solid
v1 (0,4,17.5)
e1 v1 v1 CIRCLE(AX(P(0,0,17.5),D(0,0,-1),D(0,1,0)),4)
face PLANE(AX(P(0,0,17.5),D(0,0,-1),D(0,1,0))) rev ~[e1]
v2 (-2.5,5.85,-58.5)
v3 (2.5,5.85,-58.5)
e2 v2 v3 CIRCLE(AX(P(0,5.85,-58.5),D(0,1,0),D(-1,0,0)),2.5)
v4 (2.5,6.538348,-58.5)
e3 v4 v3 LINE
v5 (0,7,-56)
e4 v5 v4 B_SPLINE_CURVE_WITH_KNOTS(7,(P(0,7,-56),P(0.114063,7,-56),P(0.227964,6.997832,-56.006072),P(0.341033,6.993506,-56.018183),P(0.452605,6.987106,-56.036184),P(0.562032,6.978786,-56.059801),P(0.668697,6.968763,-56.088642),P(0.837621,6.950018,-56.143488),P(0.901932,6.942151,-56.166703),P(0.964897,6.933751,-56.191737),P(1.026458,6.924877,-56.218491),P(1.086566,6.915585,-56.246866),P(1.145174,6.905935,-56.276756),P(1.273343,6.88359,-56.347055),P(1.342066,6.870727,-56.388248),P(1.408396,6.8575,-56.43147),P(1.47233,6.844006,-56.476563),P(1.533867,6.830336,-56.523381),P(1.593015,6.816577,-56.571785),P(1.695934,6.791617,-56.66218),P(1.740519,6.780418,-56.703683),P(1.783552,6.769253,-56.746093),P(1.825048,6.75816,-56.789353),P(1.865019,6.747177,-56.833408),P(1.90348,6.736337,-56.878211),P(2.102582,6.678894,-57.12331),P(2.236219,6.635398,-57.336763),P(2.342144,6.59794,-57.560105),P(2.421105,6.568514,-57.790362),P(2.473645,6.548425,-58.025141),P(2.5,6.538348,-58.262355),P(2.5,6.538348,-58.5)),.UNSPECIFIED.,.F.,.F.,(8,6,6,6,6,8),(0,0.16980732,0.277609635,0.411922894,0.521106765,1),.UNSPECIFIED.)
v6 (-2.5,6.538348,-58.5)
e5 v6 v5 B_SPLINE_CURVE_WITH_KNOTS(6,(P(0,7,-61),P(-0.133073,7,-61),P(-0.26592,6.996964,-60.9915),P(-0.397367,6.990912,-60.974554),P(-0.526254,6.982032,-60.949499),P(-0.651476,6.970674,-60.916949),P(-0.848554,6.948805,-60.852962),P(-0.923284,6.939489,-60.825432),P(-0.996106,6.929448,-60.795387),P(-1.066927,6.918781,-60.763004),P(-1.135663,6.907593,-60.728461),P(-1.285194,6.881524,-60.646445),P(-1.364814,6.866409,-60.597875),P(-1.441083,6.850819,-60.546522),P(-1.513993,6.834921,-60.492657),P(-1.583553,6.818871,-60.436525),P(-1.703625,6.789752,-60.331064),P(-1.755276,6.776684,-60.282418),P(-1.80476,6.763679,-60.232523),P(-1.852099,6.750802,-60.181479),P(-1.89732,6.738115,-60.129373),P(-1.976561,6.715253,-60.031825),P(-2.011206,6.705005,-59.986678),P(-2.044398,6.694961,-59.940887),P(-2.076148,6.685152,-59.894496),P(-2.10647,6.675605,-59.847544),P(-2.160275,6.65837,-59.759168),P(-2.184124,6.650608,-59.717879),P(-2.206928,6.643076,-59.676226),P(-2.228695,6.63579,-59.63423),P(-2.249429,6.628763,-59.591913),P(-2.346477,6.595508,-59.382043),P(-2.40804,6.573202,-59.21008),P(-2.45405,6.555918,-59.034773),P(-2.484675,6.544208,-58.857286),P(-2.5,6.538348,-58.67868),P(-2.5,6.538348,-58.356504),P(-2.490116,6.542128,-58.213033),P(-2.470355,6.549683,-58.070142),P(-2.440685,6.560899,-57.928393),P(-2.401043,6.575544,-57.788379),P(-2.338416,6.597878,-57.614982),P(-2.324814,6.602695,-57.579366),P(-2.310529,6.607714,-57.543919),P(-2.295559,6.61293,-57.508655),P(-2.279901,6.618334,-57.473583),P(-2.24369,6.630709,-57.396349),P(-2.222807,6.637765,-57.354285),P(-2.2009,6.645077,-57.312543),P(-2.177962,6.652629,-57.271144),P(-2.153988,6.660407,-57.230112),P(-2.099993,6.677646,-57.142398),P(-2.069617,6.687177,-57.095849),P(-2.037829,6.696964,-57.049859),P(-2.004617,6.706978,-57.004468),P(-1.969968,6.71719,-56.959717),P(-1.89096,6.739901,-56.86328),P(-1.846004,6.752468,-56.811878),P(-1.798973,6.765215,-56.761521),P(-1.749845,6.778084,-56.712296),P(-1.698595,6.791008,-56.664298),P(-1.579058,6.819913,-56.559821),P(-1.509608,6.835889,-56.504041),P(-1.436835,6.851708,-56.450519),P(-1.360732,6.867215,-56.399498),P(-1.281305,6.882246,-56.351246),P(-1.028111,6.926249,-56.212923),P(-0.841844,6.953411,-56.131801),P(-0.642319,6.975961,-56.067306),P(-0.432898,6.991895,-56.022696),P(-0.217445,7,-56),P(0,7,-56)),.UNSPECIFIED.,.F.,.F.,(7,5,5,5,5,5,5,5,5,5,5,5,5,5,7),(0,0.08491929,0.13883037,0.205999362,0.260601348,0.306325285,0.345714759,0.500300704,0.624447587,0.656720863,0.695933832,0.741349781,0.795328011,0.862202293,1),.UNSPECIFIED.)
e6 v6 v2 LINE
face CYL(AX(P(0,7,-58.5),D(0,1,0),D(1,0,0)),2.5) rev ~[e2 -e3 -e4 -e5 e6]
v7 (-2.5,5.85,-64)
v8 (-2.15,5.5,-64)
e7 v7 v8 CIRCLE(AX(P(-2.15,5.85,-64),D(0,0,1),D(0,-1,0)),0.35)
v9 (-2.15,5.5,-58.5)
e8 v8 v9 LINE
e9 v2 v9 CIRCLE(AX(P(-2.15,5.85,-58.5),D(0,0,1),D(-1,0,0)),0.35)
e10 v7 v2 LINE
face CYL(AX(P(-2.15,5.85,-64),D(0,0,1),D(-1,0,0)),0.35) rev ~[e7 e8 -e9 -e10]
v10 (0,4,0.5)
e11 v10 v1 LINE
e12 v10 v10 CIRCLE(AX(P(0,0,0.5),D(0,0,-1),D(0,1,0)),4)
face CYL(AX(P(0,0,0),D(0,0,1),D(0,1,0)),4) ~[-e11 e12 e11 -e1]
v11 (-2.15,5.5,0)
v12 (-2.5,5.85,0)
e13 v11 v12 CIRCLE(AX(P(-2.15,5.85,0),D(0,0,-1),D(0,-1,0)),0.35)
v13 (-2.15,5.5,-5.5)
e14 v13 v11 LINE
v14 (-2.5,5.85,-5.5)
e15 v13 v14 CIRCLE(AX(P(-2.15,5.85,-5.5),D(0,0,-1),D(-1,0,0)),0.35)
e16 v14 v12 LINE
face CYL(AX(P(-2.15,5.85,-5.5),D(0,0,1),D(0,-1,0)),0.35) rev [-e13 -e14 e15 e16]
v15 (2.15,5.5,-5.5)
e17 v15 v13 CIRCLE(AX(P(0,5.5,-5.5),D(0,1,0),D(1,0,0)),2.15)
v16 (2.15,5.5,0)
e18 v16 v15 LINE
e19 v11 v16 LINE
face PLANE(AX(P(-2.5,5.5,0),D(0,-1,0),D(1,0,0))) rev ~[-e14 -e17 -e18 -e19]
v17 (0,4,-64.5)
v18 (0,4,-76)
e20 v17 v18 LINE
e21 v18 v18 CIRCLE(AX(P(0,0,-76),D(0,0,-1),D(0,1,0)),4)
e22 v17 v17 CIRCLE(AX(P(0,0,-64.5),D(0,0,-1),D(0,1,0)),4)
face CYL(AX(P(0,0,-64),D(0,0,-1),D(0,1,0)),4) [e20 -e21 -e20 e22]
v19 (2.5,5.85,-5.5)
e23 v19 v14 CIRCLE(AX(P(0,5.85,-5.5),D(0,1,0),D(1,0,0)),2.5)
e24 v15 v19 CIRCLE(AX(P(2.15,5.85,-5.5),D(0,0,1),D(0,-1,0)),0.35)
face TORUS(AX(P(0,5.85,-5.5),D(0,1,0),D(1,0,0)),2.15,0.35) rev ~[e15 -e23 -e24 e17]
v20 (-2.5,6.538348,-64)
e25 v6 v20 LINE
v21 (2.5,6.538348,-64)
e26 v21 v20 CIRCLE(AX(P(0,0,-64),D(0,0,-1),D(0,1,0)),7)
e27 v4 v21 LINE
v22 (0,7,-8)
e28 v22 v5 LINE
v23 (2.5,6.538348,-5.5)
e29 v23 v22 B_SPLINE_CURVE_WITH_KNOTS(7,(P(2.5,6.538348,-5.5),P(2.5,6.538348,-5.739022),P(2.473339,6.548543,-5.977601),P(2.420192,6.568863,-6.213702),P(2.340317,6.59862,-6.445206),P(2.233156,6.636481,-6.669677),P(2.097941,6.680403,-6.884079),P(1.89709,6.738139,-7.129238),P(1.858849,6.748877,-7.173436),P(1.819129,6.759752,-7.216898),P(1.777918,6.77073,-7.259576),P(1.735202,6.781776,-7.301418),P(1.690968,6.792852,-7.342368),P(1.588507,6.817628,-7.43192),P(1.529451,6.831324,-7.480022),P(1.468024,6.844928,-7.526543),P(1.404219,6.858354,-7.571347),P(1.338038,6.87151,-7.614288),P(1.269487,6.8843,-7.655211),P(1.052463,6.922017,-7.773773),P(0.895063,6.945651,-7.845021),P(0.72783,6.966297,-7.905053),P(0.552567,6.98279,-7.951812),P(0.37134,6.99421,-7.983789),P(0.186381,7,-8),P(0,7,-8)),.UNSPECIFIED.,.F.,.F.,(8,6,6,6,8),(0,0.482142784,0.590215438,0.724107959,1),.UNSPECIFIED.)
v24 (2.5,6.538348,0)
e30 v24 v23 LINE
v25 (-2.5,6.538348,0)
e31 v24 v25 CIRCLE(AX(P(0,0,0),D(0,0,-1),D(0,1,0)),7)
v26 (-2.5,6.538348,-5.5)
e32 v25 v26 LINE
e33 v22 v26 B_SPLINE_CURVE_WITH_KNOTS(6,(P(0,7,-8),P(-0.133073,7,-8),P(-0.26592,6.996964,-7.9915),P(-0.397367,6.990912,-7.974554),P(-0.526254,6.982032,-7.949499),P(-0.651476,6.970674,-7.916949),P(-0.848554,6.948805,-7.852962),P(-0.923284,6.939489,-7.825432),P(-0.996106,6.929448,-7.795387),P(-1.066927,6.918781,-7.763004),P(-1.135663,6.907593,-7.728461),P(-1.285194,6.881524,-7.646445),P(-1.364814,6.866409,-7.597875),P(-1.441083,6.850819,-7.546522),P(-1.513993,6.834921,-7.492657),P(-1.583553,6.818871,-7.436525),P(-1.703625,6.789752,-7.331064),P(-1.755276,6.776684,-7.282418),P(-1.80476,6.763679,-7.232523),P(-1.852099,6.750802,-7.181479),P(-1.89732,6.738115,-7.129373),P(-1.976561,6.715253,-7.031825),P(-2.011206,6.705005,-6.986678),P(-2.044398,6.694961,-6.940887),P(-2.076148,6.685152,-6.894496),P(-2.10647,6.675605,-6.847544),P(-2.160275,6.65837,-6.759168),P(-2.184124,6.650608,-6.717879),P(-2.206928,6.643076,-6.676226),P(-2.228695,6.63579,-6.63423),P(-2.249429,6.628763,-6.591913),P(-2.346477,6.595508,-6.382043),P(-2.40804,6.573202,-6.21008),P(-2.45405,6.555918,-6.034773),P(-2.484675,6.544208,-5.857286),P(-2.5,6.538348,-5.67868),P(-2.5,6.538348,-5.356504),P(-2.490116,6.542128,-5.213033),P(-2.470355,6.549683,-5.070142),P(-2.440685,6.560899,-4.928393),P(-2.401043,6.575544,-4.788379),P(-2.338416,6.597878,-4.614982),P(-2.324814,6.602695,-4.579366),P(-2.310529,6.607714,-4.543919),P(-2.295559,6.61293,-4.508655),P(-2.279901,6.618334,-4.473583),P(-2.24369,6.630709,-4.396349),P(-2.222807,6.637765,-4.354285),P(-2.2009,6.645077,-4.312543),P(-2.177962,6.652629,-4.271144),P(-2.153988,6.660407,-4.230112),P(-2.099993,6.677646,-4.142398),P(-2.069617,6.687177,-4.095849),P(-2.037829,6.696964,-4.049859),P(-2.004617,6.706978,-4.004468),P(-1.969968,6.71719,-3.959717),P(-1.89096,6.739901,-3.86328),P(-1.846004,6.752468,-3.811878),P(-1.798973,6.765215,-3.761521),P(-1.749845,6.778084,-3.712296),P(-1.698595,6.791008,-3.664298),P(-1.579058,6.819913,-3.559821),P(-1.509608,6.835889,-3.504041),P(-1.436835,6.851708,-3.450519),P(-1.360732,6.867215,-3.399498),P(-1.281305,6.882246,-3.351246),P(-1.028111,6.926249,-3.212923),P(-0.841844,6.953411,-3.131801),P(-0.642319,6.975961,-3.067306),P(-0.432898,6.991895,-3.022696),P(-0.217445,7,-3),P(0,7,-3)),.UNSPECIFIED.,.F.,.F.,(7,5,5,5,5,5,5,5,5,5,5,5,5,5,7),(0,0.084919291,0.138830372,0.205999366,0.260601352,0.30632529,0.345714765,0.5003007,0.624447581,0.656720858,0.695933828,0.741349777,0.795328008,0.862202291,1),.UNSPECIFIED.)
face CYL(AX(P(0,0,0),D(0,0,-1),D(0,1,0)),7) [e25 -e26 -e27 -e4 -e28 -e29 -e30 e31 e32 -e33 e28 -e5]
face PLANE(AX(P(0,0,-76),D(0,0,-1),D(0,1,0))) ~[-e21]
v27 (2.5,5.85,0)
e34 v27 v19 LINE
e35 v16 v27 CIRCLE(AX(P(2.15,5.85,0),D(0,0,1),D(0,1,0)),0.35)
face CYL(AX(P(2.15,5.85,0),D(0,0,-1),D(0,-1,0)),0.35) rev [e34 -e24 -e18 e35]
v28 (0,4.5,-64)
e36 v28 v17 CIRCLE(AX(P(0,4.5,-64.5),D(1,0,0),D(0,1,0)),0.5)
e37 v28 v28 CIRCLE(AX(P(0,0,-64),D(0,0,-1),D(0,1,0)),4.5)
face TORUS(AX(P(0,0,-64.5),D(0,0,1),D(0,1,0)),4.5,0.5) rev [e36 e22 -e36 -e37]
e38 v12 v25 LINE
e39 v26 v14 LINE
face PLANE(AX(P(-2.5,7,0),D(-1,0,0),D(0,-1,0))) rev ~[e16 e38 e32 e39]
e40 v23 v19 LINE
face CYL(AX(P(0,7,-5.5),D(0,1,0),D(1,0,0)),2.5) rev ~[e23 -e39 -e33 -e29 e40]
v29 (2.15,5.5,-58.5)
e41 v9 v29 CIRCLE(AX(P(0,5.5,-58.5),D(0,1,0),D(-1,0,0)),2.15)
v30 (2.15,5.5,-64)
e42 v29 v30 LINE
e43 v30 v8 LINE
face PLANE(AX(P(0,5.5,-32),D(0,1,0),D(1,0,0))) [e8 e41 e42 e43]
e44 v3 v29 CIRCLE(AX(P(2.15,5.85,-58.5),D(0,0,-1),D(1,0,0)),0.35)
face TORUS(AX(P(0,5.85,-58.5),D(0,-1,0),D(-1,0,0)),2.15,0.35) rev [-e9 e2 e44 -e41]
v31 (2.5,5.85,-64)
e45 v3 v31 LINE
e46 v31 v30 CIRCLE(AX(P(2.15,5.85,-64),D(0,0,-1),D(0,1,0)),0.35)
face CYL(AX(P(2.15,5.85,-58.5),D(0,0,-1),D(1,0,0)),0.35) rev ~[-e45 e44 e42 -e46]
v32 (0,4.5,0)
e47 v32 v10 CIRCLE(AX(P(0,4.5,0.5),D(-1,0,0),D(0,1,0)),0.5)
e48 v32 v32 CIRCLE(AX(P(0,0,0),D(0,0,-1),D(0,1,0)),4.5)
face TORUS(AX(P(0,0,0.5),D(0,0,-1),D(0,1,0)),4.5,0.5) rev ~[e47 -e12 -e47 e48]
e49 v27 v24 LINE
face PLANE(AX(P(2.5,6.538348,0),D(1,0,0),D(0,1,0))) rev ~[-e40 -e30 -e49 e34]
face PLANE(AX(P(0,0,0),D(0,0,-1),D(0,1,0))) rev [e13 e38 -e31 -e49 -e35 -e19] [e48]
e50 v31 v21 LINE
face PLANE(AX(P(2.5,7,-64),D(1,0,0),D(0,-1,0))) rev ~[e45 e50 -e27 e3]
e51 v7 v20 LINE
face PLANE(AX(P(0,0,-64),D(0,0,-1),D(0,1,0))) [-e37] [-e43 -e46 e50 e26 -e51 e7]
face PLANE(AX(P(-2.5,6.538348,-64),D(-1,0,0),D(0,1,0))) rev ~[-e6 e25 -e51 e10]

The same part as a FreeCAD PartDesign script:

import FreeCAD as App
import Part
import Sketcher

V = App.Vector


def edges_at(feature, points):
    """Names of the edges that pass closest to the given points."""
    edges = feature.Shape.Edges
    near = lambda p: min(range(len(edges)), key=lambda i: edges[i].distToShape(Part.Vertex(*p))[0])
    return sorted({f"Edge{near(p) + 1}" for p in points})


def add_polygon(sketch, points):
    """Adds a closed chain of lines whose ends are joined by coincident constraints."""
    first, n = sketch.GeometryCount, len(points)
    for a, b in zip(points, points[1:] + points[:1]):
        sketch.addGeometry(Part.LineSegment(App.Vector(*a, 0), App.Vector(*b, 0)), False)
    for i in range(n):
        sketch.addConstraint(Sketcher.Constraint("Coincident", first + i, 2, first + (i + 1) % n, 1))

doc = App.newDocument("Part")
body = doc.addObject("PartDesign::Body", "Body")

# Sketch on YZ plane
sketch1 = body.newObject("Sketcher::SketchObject", "Sketch")
sketch1.AttachmentSupport = (doc.getObject("YZ_Plane"), [""])
sketch1.MapMode = "FlatFace"
add_polygon(sketch1, [(0, 17.5), (0, -76), (4, -76), (4, -64), (7, -64), (7, 0), (4, 0), (4, 17.5)])  # lines 0-7
sketch1.addConstraint([
    Sketcher.Constraint("Vertical", 0),
    Sketcher.Constraint("Horizontal", 1),
    Sketcher.Constraint("Vertical", 2),
    Sketcher.Constraint("Horizontal", 3),
    Sketcher.Constraint("Vertical", 4),
    Sketcher.Constraint("Horizontal", 5),
    Sketcher.Constraint("Vertical", 6),
    Sketcher.Constraint("Horizontal", 7),
    Sketcher.Constraint("PointOnObject", 0, 2, -2),
    Sketcher.Constraint("PointOnObject", 4, 2, -1),
    Sketcher.Constraint("Vertical", 2, 2, 5, 2),
    Sketcher.Constraint("DistanceX", 1, 1, 1, 2, 4.0),
    Sketcher.Constraint("DistanceY", 2, 1, 2, 2, 12.0),
    Sketcher.Constraint("DistanceY", 4, 1, 4, 2, 64.0),
    Sketcher.Constraint("DistanceY", 6, 1, 6, 2, 17.5),
    Sketcher.Constraint("DistanceX", -1, 1, 3, 2, 7.0),
])
revolution = body.newObject("PartDesign::Revolution", "Revolution")
revolution.Profile = sketch1
revolution.ReferenceAxis = (sketch1, ["V_Axis"])
revolution.Angle = 360

# Sketch on XY plane
sketch2 = body.newObject("Sketcher::SketchObject", "Sketch001")
sketch2.AttachmentSupport = (doc.getObject("XY_Plane"), [""])
sketch2.MapMode = "FlatFace"
add_polygon(sketch2, [(-2.5, 7), (-2.5, 5.5), (2.5, 5.5), (2.5, 7)])  # lines 0-3
sketch2.addConstraint([
    Sketcher.Constraint("Vertical", 0),
    Sketcher.Constraint("Horizontal", 1),
    Sketcher.Constraint("Vertical", 2),
    Sketcher.Constraint("Horizontal", 3),
    Sketcher.Constraint("DistanceX", 1, 1, 1, 2, 5.0),
    Sketcher.Constraint("DistanceY", 0, 2, 0, 1, 1.5),
    Sketcher.Constraint("DistanceX", 0, 2, -1, 1, 2.5),
    Sketcher.Constraint("DistanceY", -1, 1, 2, 2, 7.0),
])
pocket1 = body.newObject("PartDesign::Pocket", "Pocket")
pocket1.Profile = sketch2
pocket1.Length = 5.5

# Sketch on XY plane
sketch3 = body.newObject("Sketcher::SketchObject", "Sketch002")
sketch3.AttachmentSupport = (doc.getObject("XY_Plane"), [""])
sketch3.MapMode = "FlatFace"
sketch3.AttachmentOffset = App.Placement(V(0, 0, -64), App.Rotation())
add_polygon(sketch3, [(2.5, 7), (2.5, 5.5), (-2.5, 5.5), (-2.5, 7)])  # lines 0-3
sketch3.addConstraint([
    Sketcher.Constraint("Vertical", 0),
    Sketcher.Constraint("Horizontal", 1),
    Sketcher.Constraint("Vertical", 2),
    Sketcher.Constraint("Horizontal", 3),
    Sketcher.Constraint("DistanceX", 1, 2, 1, 1, 5.0),
    Sketcher.Constraint("DistanceY", 0, 2, 0, 1, 1.5),
    Sketcher.Constraint("DistanceX", -1, 1, 0, 2, 2.5),
    Sketcher.Constraint("DistanceY", -1, 1, 2, 2, 7.0),
])
pocket2 = body.newObject("PartDesign::Pocket", "Pocket001")
pocket2.Profile = sketch3
pocket2.Length = 5.5
pocket2.Reversed = True

# Sketch on XZ plane
sketch4 = body.newObject("Sketcher::SketchObject", "Sketch003")
sketch4.AttachmentSupport = (doc.getObject("XZ_Plane"), [""])
sketch4.MapMode = "FlatFace"
sketch4.AttachmentOffset = App.Placement(V(0, 0, -7), App.Rotation())
sketch4.addGeometry([
    Part.Circle(V(0, -5.5, 0), V(0, 0, 1), 2.5),
    Part.Circle(V(0, -58.5, 0), V(0, 0, 1), 2.5),
], False)
sketch4.addConstraint([
    Sketcher.Constraint("Equal", 0, 1),
    Sketcher.Constraint("PointOnObject", 0, 3, -2),
    Sketcher.Constraint("PointOnObject", 1, 3, -2),
    Sketcher.Constraint("Diameter", 0, 5.0),
    Sketcher.Constraint("DistanceY", 1, 3, 0, 3, 53.0),
    Sketcher.Constraint("DistanceY", 0, 3, -1, 1, 5.5),
])
pocket3 = body.newObject("PartDesign::Pocket", "Pocket002")
pocket3.Profile = sketch4
pocket3.Length = 1.5
pocket3.Reversed = True
doc.recompute()

fillet = body.newObject("PartDesign::Fillet", "Fillet")
fillet.Base = (pocket3, edges_at(pocket3, [
    (0, 5.5, -8),
    (2.5, 5.5, -2.75),
    (-2.5, 5.5, -2.75),
    (-2.5, 5.5, -61.25),
    (2.5, 5.5, -61.25),
    (0, 5.5, -56),
]))
fillet.Radius = 0.35
doc.recompute()

fillet2 = body.newObject("PartDesign::Fillet", "Fillet001")
fillet2.Base = (fillet, edges_at(fillet, [(0, -4, 0), (0, -4, -64)]))
fillet2.Radius = 0.5

doc.recompute()
